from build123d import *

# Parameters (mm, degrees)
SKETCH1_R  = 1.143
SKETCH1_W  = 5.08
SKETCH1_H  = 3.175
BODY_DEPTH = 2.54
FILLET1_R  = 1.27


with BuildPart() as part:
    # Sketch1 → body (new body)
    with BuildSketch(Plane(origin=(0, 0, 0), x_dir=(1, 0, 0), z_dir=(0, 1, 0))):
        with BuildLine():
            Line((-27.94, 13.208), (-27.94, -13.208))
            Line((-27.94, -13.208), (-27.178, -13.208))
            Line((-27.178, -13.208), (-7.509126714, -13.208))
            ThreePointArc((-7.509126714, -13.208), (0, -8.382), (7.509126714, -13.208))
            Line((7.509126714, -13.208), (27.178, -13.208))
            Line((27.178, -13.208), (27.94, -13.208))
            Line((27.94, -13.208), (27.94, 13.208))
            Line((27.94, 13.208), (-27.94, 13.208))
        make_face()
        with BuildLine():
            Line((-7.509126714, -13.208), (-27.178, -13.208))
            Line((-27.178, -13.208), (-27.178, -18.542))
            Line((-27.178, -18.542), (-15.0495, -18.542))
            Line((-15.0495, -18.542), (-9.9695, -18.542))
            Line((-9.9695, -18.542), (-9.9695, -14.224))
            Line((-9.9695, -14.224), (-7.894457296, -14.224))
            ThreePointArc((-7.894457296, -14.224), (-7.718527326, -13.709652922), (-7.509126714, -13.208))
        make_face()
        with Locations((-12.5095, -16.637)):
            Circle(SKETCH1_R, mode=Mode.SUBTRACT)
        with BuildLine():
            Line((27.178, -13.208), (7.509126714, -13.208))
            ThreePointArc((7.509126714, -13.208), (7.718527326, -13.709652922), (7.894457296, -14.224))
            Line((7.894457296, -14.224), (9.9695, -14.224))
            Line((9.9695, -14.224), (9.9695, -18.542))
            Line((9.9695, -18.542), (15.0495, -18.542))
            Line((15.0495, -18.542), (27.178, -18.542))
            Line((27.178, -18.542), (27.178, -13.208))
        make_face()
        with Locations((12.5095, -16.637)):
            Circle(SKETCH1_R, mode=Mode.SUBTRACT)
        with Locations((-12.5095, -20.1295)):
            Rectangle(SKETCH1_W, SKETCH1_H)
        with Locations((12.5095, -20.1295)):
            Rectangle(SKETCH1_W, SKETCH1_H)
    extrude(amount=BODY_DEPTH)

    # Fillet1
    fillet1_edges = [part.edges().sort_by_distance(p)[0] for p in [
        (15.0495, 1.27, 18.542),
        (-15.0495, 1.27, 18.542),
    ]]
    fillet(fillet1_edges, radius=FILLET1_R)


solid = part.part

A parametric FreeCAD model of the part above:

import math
import FreeCAD as App
import Part
import Sketcher

V = App.Vector
Q = App.Units.Quantity


def edges_at(feature, points):
    """Names of the edges that pass closest to the given points."""
    edges = feature.Shape.Edges
    near = lambda p: min(range(len(edges)), key=lambda i: edges[i].distToShape(Part.Vertex(*p))[0])
    return sorted({f"Edge{near(p) + 1}" for p in points})

doc = App.newDocument("Part")
params = doc.addObject("Spreadsheet::Sheet", "Params")
for row, (alias, value) in enumerate([
    ("sketch1_diameter", "0.09 in"),
    ("sketch1_width", "0.2 in"),
    ("sketch1_width2", "2.2 in"),
    ("sketch1_radius", "0.325 in"),
    ("sketch1_width3", "0.03 in"),
    ("pad1_length", "0.1 in"),
    ("fillet_radius", "0.05 in"),
], start=1):
    params.set(f"A{row}", alias)
    params.set(f"B{row}", "=" + value)
    params.setAlias(f"B{row}", alias)

body = doc.addObject("PartDesign::Body", "Body")

sketch1 = doc.addObject("Sketcher::SketchObject", "Sketch")
body.addObject(sketch1)
sketch1.AttachmentSupport = (doc.XZ_Plane, [""])
sketch1.MapMode = "FlatFace"
sketch1.addGeometry([
    Part.LineSegment(V(-27.9, -13.2, 0), V(-27.9, 13.2, 0)),
    Part.LineSegment(V(-27.9, 13.2, 0), V(-27.2, 13.2, 0)),
    Part.LineSegment(V(-27.2, 13.2, 0), V(-27.2, 18.5, 0)),
    Part.LineSegment(V(-27.2, 18.5, 0), V(-15, 18.5, 0)),
    Part.LineSegment(V(-15, 18.5, 0), V(-15, 21.7, 0)),
    Part.LineSegment(V(-15, 21.7, 0), V(-10, 21.7, 0)),
    Part.LineSegment(V(-10, 21.7, 0), V(-10, 14.2, 0)),
    Part.LineSegment(V(-10, 14.2, 0), V(-7.9, 14.2, 0)),
    Part.ArcOfCircle(Part.Circle(V(0, 16.6, 0), V(0, 0, 1), 8.3), math.radians(-163), math.radians(-155.46)),
    Part.ArcOfCircle(Part.Circle(V(0, 16.6, 0), V(0, 0, 1), 8.3), math.radians(-155), math.radians(-25)),
    Part.ArcOfCircle(Part.Circle(V(0, 16.6, 0), V(0, 0, 1), 8.3), math.radians(-24.54), math.radians(-17)),
    Part.LineSegment(V(7.9, 14.2, 0), V(10, 14.2, 0)),
    Part.LineSegment(V(10, 14.2, 0), V(10, 21.7, 0)),
    Part.LineSegment(V(10, 21.7, 0), V(15, 21.7, 0)),
    Part.LineSegment(V(15, 21.7, 0), V(15, 18.5, 0)),
    Part.LineSegment(V(15, 18.5, 0), V(27.2, 18.5, 0)),
    Part.LineSegment(V(27.2, 18.5, 0), V(27.2, 13.2, 0)),
    Part.LineSegment(V(27.2, 13.2, 0), V(27.9, 13.2, 0)),
    Part.LineSegment(V(27.9, 13.2, 0), V(27.9, -13.2, 0)),
    Part.LineSegment(V(27.9, -13.2, 0), V(-27.9, -13.2, 0)),
    Part.Circle(V(-12.5, 16.6, 0), V(0, 0, 1), 1.1),
    Part.Circle(V(12.5, 16.6, 0), V(0, 0, 1), 1.1),
], False)
sketch1.addConstraint([
    Sketcher.Constraint("Coincident", 0, 2, 1, 1),
    Sketcher.Constraint("Coincident", 1, 2, 2, 1),
    Sketcher.Constraint("Coincident", 2, 2, 3, 1),
    Sketcher.Constraint("Coincident", 3, 2, 4, 1),
    Sketcher.Constraint("Coincident", 4, 2, 5, 1),
    Sketcher.Constraint("Coincident", 5, 2, 6, 1),
    Sketcher.Constraint("Coincident", 6, 2, 7, 1),
    Sketcher.Constraint("Coincident", 7, 2, 8, 1),
    Sketcher.Constraint("Tangent", 8, 2, 9, 1),
    Sketcher.Constraint("Tangent", 9, 2, 10, 1),
    Sketcher.Constraint("Coincident", 10, 2, 11, 1),
    Sketcher.Constraint("Coincident", 11, 2, 12, 1),
    Sketcher.Constraint("Coincident", 12, 2, 13, 1),
    Sketcher.Constraint("Coincident", 13, 2, 14, 1),
    Sketcher.Constraint("Coincident", 14, 2, 15, 1),
    Sketcher.Constraint("Coincident", 15, 2, 16, 1),
    Sketcher.Constraint("Coincident", 16, 2, 17, 1),
    Sketcher.Constraint("Coincident", 17, 2, 18, 1),
    Sketcher.Constraint("Coincident", 18, 2, 19, 1),
    Sketcher.Constraint("Coincident", 19, 2, 0, 1),
    Sketcher.Constraint("Vertical", 0),
    Sketcher.Constraint("Horizontal", 1),
    Sketcher.Constraint("Vertical", 2),
    Sketcher.Constraint("Horizontal", 3),
    Sketcher.Constraint("Vertical", 4),
    Sketcher.Constraint("Horizontal", 5),
    Sketcher.Constraint("Vertical", 6),
    Sketcher.Constraint("Horizontal", 7),
    Sketcher.Constraint("Horizontal", 11),
    Sketcher.Constraint("Vertical", 12),
    Sketcher.Constraint("Horizontal", 13),
    Sketcher.Constraint("Vertical", 14),
    Sketcher.Constraint("Horizontal", 15),
    Sketcher.Constraint("Vertical", 16),
    Sketcher.Constraint("Horizontal", 17),
    Sketcher.Constraint("Vertical", 18),
    Sketcher.Constraint("Horizontal", 19),
    Sketcher.Constraint("Coincident", 10, 3, 8, 3),
    Sketcher.Constraint("Equal", 20, 21),
    Sketcher.Constraint("Symmetric", 0, 2, 18, 2, -1, 1),
    Sketcher.Constraint("Symmetric", 20, 3, 21, 3, -2),
    Sketcher.Constraint("Symmetric", 8, 2, 9, 2, -2),
    Sketcher.Constraint("Symmetric", 6, 2, 11, 2, -2),
    Sketcher.Constraint("Symmetric", 4, 2, 13, 2, -2),
    Sketcher.Constraint("Symmetric", 2, 2, 15, 2, -2),
    Sketcher.Constraint("Horizontal", 10, 3, 20, 3),
    Sketcher.Constraint("Horizontal", 1, 2, 8, 2),
    Sketcher.Constraint("Horizontal", 9, 2, 16, 2),
    Sketcher.Constraint("Diameter", 20, Q("0.09 in")),
    Sketcher.Constraint("DistanceX", 5, 1, 5, 2, Q("0.2 in")),
    Sketcher.Constraint("DistanceX", 19, 2, 19, 1, Q("2.2 in")),
    Sketcher.Constraint("Radius", 8, Q("0.325 in")),
    Sketcher.Constraint("DistanceX", 1, 1, 1, 2, Q("0.03 in")),
    Sketcher.Constraint("DistanceY", 0, 1, 0, 2, Q("1.04 in")),
    Sketcher.Constraint("DistanceY", 2, 1, 2, 2, Q("0.21 in")),
    Sketcher.Constraint("DistanceX", 3, 2, 20, 3, Q("0.1 in")),
    Sketcher.Constraint("DistanceY", 20, 3, 4, 2, Q("0.2 in")),
    Sketcher.Constraint("DistanceY", 4, 1, 4, 2, Q("0.125 in")),
    Sketcher.Constraint("DistanceY", 6, 2, 6, 1, Q("0.295 in")),
    Sketcher.Constraint("DistanceX", 3, 1, 3, 2, Q("0.4775 in")),
])
sketch1.setExpression("Constraints[48]", "Params.sketch1_diameter")
sketch1.setExpression("Constraints[49]", "Params.sketch1_width")
sketch1.setExpression("Constraints[50]", "Params.sketch1_width2")
sketch1.setExpression("Constraints[51]", "Params.sketch1_radius")
sketch1.setExpression("Constraints[52]", "Params.sketch1_width3")
pad1 = doc.addObject("PartDesign::Pad", "Pad")
body.addObject(pad1)
pad1.Profile = sketch1
pad1.setExpression("Length", "Params.pad1_length")
pad1.Reversed = True
doc.recompute()

fillet = doc.addObject("PartDesign::Fillet", "Fillet")
body.addObject(fillet)
fillet.Base = (pad1, edges_at(pad1, [(15.05, 1.27, 18.542), (-15.05, 1.27, 18.542)]))
fillet.setExpression("Radius", "Params.fillet_radius")

doc.recompute()
